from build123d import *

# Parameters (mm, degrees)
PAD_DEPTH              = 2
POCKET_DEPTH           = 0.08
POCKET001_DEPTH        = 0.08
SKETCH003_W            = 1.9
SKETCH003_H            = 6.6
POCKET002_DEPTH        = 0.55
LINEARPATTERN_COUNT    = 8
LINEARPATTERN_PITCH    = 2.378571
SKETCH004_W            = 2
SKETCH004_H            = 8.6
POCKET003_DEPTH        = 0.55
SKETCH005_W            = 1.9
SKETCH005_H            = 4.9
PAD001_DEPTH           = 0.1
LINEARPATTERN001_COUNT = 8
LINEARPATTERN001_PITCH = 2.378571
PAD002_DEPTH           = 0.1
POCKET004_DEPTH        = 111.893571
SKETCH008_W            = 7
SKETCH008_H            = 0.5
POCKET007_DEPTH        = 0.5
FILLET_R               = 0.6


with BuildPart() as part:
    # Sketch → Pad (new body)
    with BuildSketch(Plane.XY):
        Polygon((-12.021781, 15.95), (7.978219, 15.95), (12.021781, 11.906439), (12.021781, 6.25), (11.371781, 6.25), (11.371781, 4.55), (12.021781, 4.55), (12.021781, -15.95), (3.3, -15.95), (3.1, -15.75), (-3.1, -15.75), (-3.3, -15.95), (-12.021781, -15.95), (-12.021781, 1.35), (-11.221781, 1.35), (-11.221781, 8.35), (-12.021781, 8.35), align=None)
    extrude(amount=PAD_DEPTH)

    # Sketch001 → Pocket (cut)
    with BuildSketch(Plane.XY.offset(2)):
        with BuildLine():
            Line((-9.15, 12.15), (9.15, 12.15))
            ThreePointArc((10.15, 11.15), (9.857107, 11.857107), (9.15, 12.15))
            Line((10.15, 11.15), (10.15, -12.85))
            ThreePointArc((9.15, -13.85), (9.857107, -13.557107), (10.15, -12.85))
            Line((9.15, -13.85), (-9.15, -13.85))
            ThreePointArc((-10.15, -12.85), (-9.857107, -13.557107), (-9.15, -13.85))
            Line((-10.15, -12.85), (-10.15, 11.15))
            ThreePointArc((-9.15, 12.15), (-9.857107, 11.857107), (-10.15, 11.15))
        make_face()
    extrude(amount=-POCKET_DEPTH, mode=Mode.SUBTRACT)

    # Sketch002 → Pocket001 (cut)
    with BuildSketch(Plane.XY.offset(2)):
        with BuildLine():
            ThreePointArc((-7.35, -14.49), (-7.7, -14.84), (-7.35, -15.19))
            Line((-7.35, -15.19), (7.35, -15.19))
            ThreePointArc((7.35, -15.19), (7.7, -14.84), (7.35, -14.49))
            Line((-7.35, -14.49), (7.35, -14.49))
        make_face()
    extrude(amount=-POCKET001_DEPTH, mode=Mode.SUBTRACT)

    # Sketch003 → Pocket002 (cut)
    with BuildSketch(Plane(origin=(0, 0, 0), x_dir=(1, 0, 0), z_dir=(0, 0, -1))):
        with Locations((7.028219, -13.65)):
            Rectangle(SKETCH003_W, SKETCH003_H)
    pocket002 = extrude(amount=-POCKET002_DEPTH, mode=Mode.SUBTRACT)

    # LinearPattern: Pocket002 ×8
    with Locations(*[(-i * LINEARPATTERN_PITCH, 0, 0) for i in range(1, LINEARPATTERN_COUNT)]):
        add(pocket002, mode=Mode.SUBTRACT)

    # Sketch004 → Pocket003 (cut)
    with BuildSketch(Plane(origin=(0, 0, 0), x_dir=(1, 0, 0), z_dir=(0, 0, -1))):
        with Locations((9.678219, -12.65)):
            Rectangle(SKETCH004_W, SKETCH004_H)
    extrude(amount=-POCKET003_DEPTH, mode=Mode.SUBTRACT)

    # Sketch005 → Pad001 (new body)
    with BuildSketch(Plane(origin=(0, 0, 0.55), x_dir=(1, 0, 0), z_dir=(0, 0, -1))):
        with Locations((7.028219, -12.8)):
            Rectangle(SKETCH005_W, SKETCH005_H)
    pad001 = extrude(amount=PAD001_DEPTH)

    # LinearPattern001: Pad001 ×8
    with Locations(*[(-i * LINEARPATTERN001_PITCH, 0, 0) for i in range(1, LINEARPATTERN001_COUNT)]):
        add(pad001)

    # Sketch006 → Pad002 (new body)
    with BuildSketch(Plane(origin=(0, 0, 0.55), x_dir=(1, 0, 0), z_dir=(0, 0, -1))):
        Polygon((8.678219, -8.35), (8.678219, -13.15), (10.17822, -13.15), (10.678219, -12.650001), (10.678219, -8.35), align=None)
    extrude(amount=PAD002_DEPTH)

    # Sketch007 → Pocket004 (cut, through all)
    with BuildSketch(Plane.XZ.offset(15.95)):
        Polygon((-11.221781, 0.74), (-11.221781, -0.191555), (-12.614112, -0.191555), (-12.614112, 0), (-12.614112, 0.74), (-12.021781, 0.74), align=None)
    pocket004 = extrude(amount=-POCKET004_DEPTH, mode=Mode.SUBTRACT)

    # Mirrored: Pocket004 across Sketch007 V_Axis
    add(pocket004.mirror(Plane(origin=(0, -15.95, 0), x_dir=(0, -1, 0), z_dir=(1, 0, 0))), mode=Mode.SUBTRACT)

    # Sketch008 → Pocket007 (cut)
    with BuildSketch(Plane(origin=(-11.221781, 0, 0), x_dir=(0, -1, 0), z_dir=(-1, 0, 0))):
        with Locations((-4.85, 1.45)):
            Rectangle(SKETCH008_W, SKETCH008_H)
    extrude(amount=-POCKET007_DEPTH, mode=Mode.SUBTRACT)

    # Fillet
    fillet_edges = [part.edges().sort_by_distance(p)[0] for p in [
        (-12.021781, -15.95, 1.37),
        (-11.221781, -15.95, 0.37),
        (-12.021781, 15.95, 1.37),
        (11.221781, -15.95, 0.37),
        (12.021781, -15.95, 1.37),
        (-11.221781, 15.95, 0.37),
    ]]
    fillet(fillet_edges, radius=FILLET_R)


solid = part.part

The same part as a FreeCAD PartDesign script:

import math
import FreeCAD as App
import Part
import Sketcher

V = App.Vector
Q = App.Units.Quantity


def edges_at(feature, points):
    """Names of the edges that pass closest to the given points."""
    edges = feature.Shape.Edges
    near = lambda p: min(range(len(edges)), key=lambda i: edges[i].distToShape(Part.Vertex(*p))[0])
    return sorted({f"Edge{near(p) + 1}" for p in points})


def add_polygon(sketch, points):
    """Adds a closed chain of lines whose ends are joined by coincident constraints."""
    first, n = sketch.GeometryCount, len(points)
    for a, b in zip(points, points[1:] + points[:1]):
        sketch.addGeometry(Part.LineSegment(App.Vector(*a, 0), App.Vector(*b, 0)), False)
    for i in range(n):
        sketch.addConstraint(Sketcher.Constraint("Coincident", first + i, 2, first + (i + 1) % n, 1))

doc = App.newDocument("Part")
body = doc.addObject("PartDesign::Body", "Body")

sketch1 = body.newObject("Sketcher::SketchObject", "Sketch")
sketch1.AttachmentSupport = (doc.getObject("XY_Plane"), [""])
sketch1.MapMode = "FlatFace"
add_polygon(sketch1, [(7.98, 15.95), (-12.02, 15.95), (-12.02, 8.35), (-11.22, 8.35), (-11.22, 1.35), (-12.02, 1.35), (-12.02, -15.95), (-3.3, -15.95), (-3.1, -15.75), (3.1, -15.75), (3.3, -15.95), (12.02, -15.95), (12.02, 4.55), (11.37, 4.55), (11.37, 6.25), (12.02, 6.25), (12.02, 11.91)])
sketch1.addConstraint([
    Sketcher.Constraint("Horizontal", 0),
    Sketcher.Constraint("Vertical", 1),
    Sketcher.Constraint("Horizontal", 2),
    Sketcher.Constraint("Vertical", 3),
    Sketcher.Constraint("Horizontal", 4),
    Sketcher.Constraint("Vertical", 5),
    Sketcher.Constraint("Horizontal", 6),
    Sketcher.Constraint("Horizontal", 8),
    Sketcher.Constraint("Horizontal", 10),
    Sketcher.Constraint("Vertical", 11),
    Sketcher.Constraint("Horizontal", 12),
    Sketcher.Constraint("Vertical", 13),
    Sketcher.Constraint("Horizontal", 14),
    Sketcher.Constraint("Vertical", 15),
    Sketcher.Constraint("Symmetric", 0, 2, 10, 2, -1, 1),
    Sketcher.Constraint("Symmetric", 6, 2, 9, 2, -2),
    Sketcher.Constraint("Perpendicular", 7, 9),
    Sketcher.Constraint("Parallel", 9, 16),
    Sketcher.Constraint("Vertical", 1, 2, 4, 2),
    Sketcher.Constraint("Vertical", 11, 2, 14, 2),
    Sketcher.Constraint("Equal", 7, 9),
    Sketcher.Constraint("DistanceX", 0, 2, 0, 1, Q("20 mm")),
    Sketcher.Constraint("DistanceY", 3, 2, 3, 1, Q("7 mm")),
    Sketcher.Constraint("DistanceX", 2, 1, 2, 2, Q("0.8 mm")),
    Sketcher.Constraint("DistanceX", 8, 1, 8, 2, Q("6.2 mm")),
    Sketcher.Constraint("DistanceY", 1, 2, 1, 1, Q("7.6 mm")),
    Sketcher.Constraint("DistanceY", 5, 2, 5, 1, Q("17.3 mm")),
    Sketcher.Constraint("DistanceY", 11, 1, 11, 2, Q("20.5 mm")),
    Sketcher.Constraint("DistanceY", 13, 1, 13, 2, Q("1.7 mm")),
    Sketcher.Constraint("DistanceX", 12, 2, 12, 1, Q("0.65 mm")),
    Sketcher.Constraint("DistanceX", 6, 2, -1, 1, Q("3.3 mm")),
    Sketcher.Constraint("DistanceX", 6, 1, 6, 2, Q("8.721781 mm")),
])
pad1 = body.newObject("PartDesign::Pad", "Pad")
pad1.Profile = sketch1
pad1.Length = 2

sketch2 = body.newObject("Sketcher::SketchObject", "Sketch001")
sketch2.AttachmentSupport = (doc.getObject("XY_Plane"), [""])
sketch2.MapMode = "FlatFace"
sketch2.AttachmentOffset = App.Placement(V(0, 0, 2), App.Rotation())
sketch2.addGeometry([
    Part.LineSegment(V(9.2, 12.2, 0), V(-9.2, 12.2, 0)),
    Part.ArcOfCircle(Part.Circle(V(-9.2, 11.2, 0), V(0, 0, 1), 1), math.radians(90), math.radians(180)),
    Part.LineSegment(V(-10.2, 11.2, 0), V(-10.2, -12.8, 0)),
    Part.ArcOfCircle(Part.Circle(V(-9.2, -12.9, 0), V(0, 0, 1), 1), math.radians(180), math.radians(270)),
    Part.LineSegment(V(-9.2, -13.8, 0), V(9.2, -13.8, 0)),
    Part.ArcOfCircle(Part.Circle(V(9.2, -12.9, 0), V(0, 0, 1), 1), math.radians(-90), math.radians(0)),
    Part.LineSegment(V(10.2, -12.8, 0), V(10.2, 11.2, 0)),
    Part.ArcOfCircle(Part.Circle(V(9.2, 11.2, 0), V(0, 0, 1), 1), math.radians(0), math.radians(90)),
], False)
sketch2.addConstraint([
    Sketcher.Constraint("Tangent", 0, 2, 1, 1),
    Sketcher.Constraint("Tangent", 1, 2, 2, 1),
    Sketcher.Constraint("Tangent", 2, 2, 3, 1),
    Sketcher.Constraint("Tangent", 3, 2, 4, 1),
    Sketcher.Constraint("Tangent", 4, 2, 5, 1),
    Sketcher.Constraint("Tangent", 5, 2, 6, 1),
    Sketcher.Constraint("Tangent", 6, 2, 7, 1),
    Sketcher.Constraint("Tangent", 7, 2, 0, 1),
    Sketcher.Constraint("Horizontal", 0),
    Sketcher.Constraint("Vertical", 2),
    Sketcher.Constraint("Horizontal", 4),
    Sketcher.Constraint("Vertical", 6),
    Sketcher.Constraint("Equal", 1, 3),
    Sketcher.Constraint("Equal", 3, 5),
    Sketcher.Constraint("Equal", 5, 7),
    Sketcher.Constraint("Radius", 1, Q("0.999999 mm")),
    Sketcher.Constraint("DistanceY", 2, 2, 2, 1, Q("24 mm")),
    Sketcher.Constraint("DistanceX", 0, 2, 0, 1, Q("18.3 mm")),
    Sketcher.Constraint("DistanceX", 1, 3, -1, 1, Q("9.150001 mm")),
    Sketcher.Constraint("DistanceY", -1, 1, 1, 3, Q("11.150001 mm")),
])
pocket1 = body.newObject("PartDesign::Pocket", "Pocket")
pocket1.Profile = sketch2
pocket1.Length = 0.08

sketch3 = body.newObject("Sketcher::SketchObject", "Sketch002")
sketch3.AttachmentSupport = (doc.getObject("XY_Plane"), [""])
sketch3.MapMode = "FlatFace"
sketch3.AttachmentOffset = App.Placement(V(0, 0, 2), App.Rotation())
sketch3.addGeometry([
    Part.ArcOfCircle(Part.Circle(V(-7.35, -14.84, 0), V(0, 0, 1), 0.35), math.radians(90), math.radians(270)),
    Part.LineSegment(V(-7.35, -15.19, 0), V(7.35, -15.19, 0)),
    Part.ArcOfCircle(Part.Circle(V(7.35, -14.84, 0), V(0, 0, 1), 0.35), math.radians(-90), math.radians(90)),
    Part.LineSegment(V(7.35, -14.49, 0), V(-7.35, -14.49, 0)),
], False)
sketch3.addConstraint([
    Sketcher.Constraint("Tangent", 0, 2, 1, 1),
    Sketcher.Constraint("Tangent", 1, 2, 2, 1),
    Sketcher.Constraint("Tangent", 2, 2, 3, 1),
    Sketcher.Constraint("Tangent", 3, 2, 0, 1),
    Sketcher.Constraint("Horizontal", 1),
    Sketcher.Constraint("Horizontal", 3),
    Sketcher.Constraint("Radius", 0, Q("0.35 mm")),
    Sketcher.Constraint("DistanceX", 1, 1, 1, 2, Q("14.7 mm")),
    Sketcher.Constraint("DistanceX", 0, 3, -1, 1, Q("7.35 mm")),
    Sketcher.Constraint("DistanceY", 0, 3, -1, 1, Q("14.84 mm")),
])
pocket2 = body.newObject("PartDesign::Pocket", "Pocket001")
pocket2.Profile = sketch3
pocket2.Length = 0.08

sketch4 = body.newObject("Sketcher::SketchObject", "Sketch003")
sketch4.AttachmentSupport = (doc.getObject("XY_Plane"), [""])
sketch4.MapMode = "FlatFace"
add_polygon(sketch4, [(6.1, 10.3), (6.1, 16.9), (8, 16.9), (8, 10.3)])
sketch4.addConstraint([
    Sketcher.Constraint("Vertical", 0),
    Sketcher.Constraint("Horizontal", 1),
    Sketcher.Constraint("Vertical", 2),
    Sketcher.Constraint("Horizontal", 3),
    Sketcher.Constraint("DistanceX", 1, 1, 1, 2, Q("1.9 mm")),
    Sketcher.Constraint("DistanceY", 0, 1, 0, 2, Q("6.6 mm")),
    Sketcher.Constraint("DistanceY", -1, 1, 0, 2, Q("16.95 mm")),
    Sketcher.Constraint("DistanceX", -1, 1, 0, 2, Q("6.078219 mm")),
])
pocket3 = body.newObject("PartDesign::Pocket", "Pocket002")
pocket3.Profile = sketch4
pocket3.Length = 0.55
pocket3.Reversed = True
doc.recompute()

linearpattern = body.newObject("PartDesign::LinearPattern", "LinearPattern")
linearpattern.Originals = [pocket3]
linearpattern.Direction = (doc.getObject("X_Axis"), [""])
linearpattern.Mode = "offset"
linearpattern.Offset = 2.378571
linearpattern.Occurrences = 8
linearpattern.Reversed = True
body.Tip = linearpattern

sketch5 = body.newObject("Sketcher::SketchObject", "Sketch004")
sketch5.AttachmentSupport = (doc.getObject("XY_Plane"), [""])
sketch5.MapMode = "FlatFace"
add_polygon(sketch5, [(8.7, 8.3), (8.7, 16.9), (10.7, 16.9), (10.7, 8.3)])
sketch5.addConstraint([
    Sketcher.Constraint("Vertical", 0),
    Sketcher.Constraint("Horizontal", 1),
    Sketcher.Constraint("Vertical", 2),
    Sketcher.Constraint("Horizontal", 3),
    Sketcher.Constraint("DistanceX", 1, 1, 1, 2, Q("2 mm")),
    Sketcher.Constraint("DistanceY", 0, 1, 0, 2, Q("8.6 mm")),
    Sketcher.Constraint("DistanceY", -1, 1, 0, 2, Q("16.95 mm")),
    Sketcher.Constraint("DistanceX", -1, 1, 0, 2, Q("8.678219 mm")),
])
pocket4 = body.newObject("PartDesign::Pocket", "Pocket003")
pocket4.Profile = sketch5
pocket4.Length = 0.55
pocket4.Reversed = True

sketch6 = body.newObject("Sketcher::SketchObject", "Sketch005")
sketch6.AttachmentSupport = (doc.getObject("XY_Plane"), [""])
sketch6.MapMode = "FlatFace"
sketch6.AttachmentOffset = App.Placement(V(0, 0, 0.55), App.Rotation())
add_polygon(sketch6, [(6.1, 10.3), (6.1, 15.2), (8, 15.2), (8, 10.3)])
sketch6.addConstraint([
    Sketcher.Constraint("Vertical", 0),
    Sketcher.Constraint("Horizontal", 1),
    Sketcher.Constraint("Vertical", 2),
    Sketcher.Constraint("Horizontal", 3),
    Sketcher.Constraint("DistanceX", 1, 1, 1, 2, Q("1.9 mm")),
    Sketcher.Constraint("DistanceY", 0, 1, 0, 2, Q("4.9 mm")),
    Sketcher.Constraint("DistanceY", -1, 1, 0, 2, Q("15.25 mm")),
    Sketcher.Constraint("DistanceX", -1, 1, 0, 2, Q("6.078219 mm")),
])
pad2 = body.newObject("PartDesign::Pad", "Pad001")
pad2.Profile = sketch6
pad2.Length = 0.1
pad2.Reversed = True
doc.recompute()

linearpattern2 = body.newObject("PartDesign::LinearPattern", "LinearPattern001")
linearpattern2.Originals = [pad2]
linearpattern2.Direction = (doc.getObject("X_Axis"), [""])
linearpattern2.Mode = "offset"
linearpattern2.Offset = 2.378571
linearpattern2.Occurrences = 8
linearpattern2.Reversed = True
body.Tip = linearpattern2

sketch7 = body.newObject("Sketcher::SketchObject", "Sketch006")
sketch7.AttachmentSupport = (doc.getObject("XY_Plane"), [""])
sketch7.MapMode = "FlatFace"
sketch7.AttachmentOffset = App.Placement(V(0, 0, 0.55), App.Rotation())
add_polygon(sketch7, [(8.7, 8.3), (8.7, 13.2), (10.2, 13.2), (10.7, 12.7), (10.7, 8.3)])
sketch7.addConstraint([
    Sketcher.Constraint("Vertical", 0),
    Sketcher.Constraint("Horizontal", 1),
    Sketcher.Constraint("Vertical", 3),
    Sketcher.Constraint("Horizontal", 4),
    Sketcher.Constraint("DistanceX", 4, 2, 4, 1, Q("2 mm")),
    Sketcher.Constraint("Angle", 2, Q("-45 deg")),
    Sketcher.Constraint("DistanceX", 1, 1, 1, 2, Q("1.500001 mm")),
    Sketcher.Constraint("DistanceY", 0, 1, 0, 2, Q("4.8 mm")),
    Sketcher.Constraint("DistanceY", -1, 1, 0, 2, Q("13.15 mm")),
    Sketcher.Constraint("DistanceX", -1, 1, 0, 2, Q("8.678219 mm")),
])
pad3 = body.newObject("PartDesign::Pad", "Pad002")
pad3.Profile = sketch7
pad3.Length = 0.1
pad3.Reversed = True

sketch8 = body.newObject("Sketcher::SketchObject", "Sketch007")
sketch8.AttachmentSupport = (doc.getObject("XZ_Plane"), [""])
sketch8.MapMode = "FlatFace"
sketch8.AttachmentOffset = App.Placement(V(0, 0, 15.95), App.Rotation())
add_polygon(sketch8, [(-11.2, -0.2), (-11.2, 0.7), (-12.6, 0.7), (-12.6, -0.2)])
sketch8.addConstraint([
    Sketcher.Constraint("Vertical", 0),
    Sketcher.Constraint("Horizontal", 1),
    Sketcher.Constraint("Vertical", 2),
    Sketcher.Constraint("Horizontal", 3),
    Sketcher.Constraint("DistanceY", -1, 1, 0, 2, Q("0.74 mm")),
    Sketcher.Constraint("DistanceX", 1, 2, 1, 1, Q("1.392331 mm")),
    Sketcher.Constraint("DistanceY", 0, 1, 0, 2, Q("0.931555 mm")),
    Sketcher.Constraint("DistanceX", 0, 2, -1, 1, Q("11.221781 mm")),
])
pocket5 = body.newObject("PartDesign::Pocket", "Pocket004")
pocket5.Profile = sketch8
pocket5.Type = "ThroughAll"
doc.recompute()

mirrored = body.newObject("PartDesign::Mirrored", "Mirrored")
mirrored.Originals = [pocket5]
mirrored.MirrorPlane = (doc.getObject("YZ_Plane"), [""])
body.Tip = mirrored

sketch9 = body.newObject("Sketcher::SketchObject", "Sketch008")
sketch9.AttachmentSupport = (doc.getObject("YZ_Plane"), [""])
sketch9.MapMode = "FlatFace"
sketch9.AttachmentOffset = App.Placement(V(0, 0, -11.221781), App.Rotation())
add_polygon(sketch9, [(8.3, 1.7), (8.3, 1.2), (1.4, 1.2), (1.4, 1.7)])
sketch9.addConstraint([
    Sketcher.Constraint("Vertical", 0),
    Sketcher.Constraint("Horizontal", 1),
    Sketcher.Constraint("Vertical", 2),
    Sketcher.Constraint("Horizontal", 3),
    Sketcher.Constraint("DistanceX", 1, 2, 1, 1, Q("7 mm")),
    Sketcher.Constraint("DistanceY", 0, 2, 0, 1, Q("0.5 mm")),
    Sketcher.Constraint("DistanceY", -1, 1, 0, 2, Q("1.2 mm")),
    Sketcher.Constraint("DistanceX", -1, 1, 0, 2, Q("8.35 mm")),
])
pocket6 = body.newObject("PartDesign::Pocket", "Pocket005")
pocket6.Profile = sketch9
pocket6.Length = 0.5
pocket6.Reversed = True
doc.recompute()

fillet = body.newObject("PartDesign::Fillet", "Fillet")
fillet.Base = (pocket6, edges_at(pocket6, [
    (-12.022, -15.95, 1.37),
    (-11.222, -15.95, 0.37),
    (-12.022, 15.95, 1.37),
    (11.222, -15.95, 0.37),
    (12.022, -15.95, 1.37),
    (-11.222, 15.95, 0.37),
]))
fillet.Radius = 0.6

doc.recompute()
